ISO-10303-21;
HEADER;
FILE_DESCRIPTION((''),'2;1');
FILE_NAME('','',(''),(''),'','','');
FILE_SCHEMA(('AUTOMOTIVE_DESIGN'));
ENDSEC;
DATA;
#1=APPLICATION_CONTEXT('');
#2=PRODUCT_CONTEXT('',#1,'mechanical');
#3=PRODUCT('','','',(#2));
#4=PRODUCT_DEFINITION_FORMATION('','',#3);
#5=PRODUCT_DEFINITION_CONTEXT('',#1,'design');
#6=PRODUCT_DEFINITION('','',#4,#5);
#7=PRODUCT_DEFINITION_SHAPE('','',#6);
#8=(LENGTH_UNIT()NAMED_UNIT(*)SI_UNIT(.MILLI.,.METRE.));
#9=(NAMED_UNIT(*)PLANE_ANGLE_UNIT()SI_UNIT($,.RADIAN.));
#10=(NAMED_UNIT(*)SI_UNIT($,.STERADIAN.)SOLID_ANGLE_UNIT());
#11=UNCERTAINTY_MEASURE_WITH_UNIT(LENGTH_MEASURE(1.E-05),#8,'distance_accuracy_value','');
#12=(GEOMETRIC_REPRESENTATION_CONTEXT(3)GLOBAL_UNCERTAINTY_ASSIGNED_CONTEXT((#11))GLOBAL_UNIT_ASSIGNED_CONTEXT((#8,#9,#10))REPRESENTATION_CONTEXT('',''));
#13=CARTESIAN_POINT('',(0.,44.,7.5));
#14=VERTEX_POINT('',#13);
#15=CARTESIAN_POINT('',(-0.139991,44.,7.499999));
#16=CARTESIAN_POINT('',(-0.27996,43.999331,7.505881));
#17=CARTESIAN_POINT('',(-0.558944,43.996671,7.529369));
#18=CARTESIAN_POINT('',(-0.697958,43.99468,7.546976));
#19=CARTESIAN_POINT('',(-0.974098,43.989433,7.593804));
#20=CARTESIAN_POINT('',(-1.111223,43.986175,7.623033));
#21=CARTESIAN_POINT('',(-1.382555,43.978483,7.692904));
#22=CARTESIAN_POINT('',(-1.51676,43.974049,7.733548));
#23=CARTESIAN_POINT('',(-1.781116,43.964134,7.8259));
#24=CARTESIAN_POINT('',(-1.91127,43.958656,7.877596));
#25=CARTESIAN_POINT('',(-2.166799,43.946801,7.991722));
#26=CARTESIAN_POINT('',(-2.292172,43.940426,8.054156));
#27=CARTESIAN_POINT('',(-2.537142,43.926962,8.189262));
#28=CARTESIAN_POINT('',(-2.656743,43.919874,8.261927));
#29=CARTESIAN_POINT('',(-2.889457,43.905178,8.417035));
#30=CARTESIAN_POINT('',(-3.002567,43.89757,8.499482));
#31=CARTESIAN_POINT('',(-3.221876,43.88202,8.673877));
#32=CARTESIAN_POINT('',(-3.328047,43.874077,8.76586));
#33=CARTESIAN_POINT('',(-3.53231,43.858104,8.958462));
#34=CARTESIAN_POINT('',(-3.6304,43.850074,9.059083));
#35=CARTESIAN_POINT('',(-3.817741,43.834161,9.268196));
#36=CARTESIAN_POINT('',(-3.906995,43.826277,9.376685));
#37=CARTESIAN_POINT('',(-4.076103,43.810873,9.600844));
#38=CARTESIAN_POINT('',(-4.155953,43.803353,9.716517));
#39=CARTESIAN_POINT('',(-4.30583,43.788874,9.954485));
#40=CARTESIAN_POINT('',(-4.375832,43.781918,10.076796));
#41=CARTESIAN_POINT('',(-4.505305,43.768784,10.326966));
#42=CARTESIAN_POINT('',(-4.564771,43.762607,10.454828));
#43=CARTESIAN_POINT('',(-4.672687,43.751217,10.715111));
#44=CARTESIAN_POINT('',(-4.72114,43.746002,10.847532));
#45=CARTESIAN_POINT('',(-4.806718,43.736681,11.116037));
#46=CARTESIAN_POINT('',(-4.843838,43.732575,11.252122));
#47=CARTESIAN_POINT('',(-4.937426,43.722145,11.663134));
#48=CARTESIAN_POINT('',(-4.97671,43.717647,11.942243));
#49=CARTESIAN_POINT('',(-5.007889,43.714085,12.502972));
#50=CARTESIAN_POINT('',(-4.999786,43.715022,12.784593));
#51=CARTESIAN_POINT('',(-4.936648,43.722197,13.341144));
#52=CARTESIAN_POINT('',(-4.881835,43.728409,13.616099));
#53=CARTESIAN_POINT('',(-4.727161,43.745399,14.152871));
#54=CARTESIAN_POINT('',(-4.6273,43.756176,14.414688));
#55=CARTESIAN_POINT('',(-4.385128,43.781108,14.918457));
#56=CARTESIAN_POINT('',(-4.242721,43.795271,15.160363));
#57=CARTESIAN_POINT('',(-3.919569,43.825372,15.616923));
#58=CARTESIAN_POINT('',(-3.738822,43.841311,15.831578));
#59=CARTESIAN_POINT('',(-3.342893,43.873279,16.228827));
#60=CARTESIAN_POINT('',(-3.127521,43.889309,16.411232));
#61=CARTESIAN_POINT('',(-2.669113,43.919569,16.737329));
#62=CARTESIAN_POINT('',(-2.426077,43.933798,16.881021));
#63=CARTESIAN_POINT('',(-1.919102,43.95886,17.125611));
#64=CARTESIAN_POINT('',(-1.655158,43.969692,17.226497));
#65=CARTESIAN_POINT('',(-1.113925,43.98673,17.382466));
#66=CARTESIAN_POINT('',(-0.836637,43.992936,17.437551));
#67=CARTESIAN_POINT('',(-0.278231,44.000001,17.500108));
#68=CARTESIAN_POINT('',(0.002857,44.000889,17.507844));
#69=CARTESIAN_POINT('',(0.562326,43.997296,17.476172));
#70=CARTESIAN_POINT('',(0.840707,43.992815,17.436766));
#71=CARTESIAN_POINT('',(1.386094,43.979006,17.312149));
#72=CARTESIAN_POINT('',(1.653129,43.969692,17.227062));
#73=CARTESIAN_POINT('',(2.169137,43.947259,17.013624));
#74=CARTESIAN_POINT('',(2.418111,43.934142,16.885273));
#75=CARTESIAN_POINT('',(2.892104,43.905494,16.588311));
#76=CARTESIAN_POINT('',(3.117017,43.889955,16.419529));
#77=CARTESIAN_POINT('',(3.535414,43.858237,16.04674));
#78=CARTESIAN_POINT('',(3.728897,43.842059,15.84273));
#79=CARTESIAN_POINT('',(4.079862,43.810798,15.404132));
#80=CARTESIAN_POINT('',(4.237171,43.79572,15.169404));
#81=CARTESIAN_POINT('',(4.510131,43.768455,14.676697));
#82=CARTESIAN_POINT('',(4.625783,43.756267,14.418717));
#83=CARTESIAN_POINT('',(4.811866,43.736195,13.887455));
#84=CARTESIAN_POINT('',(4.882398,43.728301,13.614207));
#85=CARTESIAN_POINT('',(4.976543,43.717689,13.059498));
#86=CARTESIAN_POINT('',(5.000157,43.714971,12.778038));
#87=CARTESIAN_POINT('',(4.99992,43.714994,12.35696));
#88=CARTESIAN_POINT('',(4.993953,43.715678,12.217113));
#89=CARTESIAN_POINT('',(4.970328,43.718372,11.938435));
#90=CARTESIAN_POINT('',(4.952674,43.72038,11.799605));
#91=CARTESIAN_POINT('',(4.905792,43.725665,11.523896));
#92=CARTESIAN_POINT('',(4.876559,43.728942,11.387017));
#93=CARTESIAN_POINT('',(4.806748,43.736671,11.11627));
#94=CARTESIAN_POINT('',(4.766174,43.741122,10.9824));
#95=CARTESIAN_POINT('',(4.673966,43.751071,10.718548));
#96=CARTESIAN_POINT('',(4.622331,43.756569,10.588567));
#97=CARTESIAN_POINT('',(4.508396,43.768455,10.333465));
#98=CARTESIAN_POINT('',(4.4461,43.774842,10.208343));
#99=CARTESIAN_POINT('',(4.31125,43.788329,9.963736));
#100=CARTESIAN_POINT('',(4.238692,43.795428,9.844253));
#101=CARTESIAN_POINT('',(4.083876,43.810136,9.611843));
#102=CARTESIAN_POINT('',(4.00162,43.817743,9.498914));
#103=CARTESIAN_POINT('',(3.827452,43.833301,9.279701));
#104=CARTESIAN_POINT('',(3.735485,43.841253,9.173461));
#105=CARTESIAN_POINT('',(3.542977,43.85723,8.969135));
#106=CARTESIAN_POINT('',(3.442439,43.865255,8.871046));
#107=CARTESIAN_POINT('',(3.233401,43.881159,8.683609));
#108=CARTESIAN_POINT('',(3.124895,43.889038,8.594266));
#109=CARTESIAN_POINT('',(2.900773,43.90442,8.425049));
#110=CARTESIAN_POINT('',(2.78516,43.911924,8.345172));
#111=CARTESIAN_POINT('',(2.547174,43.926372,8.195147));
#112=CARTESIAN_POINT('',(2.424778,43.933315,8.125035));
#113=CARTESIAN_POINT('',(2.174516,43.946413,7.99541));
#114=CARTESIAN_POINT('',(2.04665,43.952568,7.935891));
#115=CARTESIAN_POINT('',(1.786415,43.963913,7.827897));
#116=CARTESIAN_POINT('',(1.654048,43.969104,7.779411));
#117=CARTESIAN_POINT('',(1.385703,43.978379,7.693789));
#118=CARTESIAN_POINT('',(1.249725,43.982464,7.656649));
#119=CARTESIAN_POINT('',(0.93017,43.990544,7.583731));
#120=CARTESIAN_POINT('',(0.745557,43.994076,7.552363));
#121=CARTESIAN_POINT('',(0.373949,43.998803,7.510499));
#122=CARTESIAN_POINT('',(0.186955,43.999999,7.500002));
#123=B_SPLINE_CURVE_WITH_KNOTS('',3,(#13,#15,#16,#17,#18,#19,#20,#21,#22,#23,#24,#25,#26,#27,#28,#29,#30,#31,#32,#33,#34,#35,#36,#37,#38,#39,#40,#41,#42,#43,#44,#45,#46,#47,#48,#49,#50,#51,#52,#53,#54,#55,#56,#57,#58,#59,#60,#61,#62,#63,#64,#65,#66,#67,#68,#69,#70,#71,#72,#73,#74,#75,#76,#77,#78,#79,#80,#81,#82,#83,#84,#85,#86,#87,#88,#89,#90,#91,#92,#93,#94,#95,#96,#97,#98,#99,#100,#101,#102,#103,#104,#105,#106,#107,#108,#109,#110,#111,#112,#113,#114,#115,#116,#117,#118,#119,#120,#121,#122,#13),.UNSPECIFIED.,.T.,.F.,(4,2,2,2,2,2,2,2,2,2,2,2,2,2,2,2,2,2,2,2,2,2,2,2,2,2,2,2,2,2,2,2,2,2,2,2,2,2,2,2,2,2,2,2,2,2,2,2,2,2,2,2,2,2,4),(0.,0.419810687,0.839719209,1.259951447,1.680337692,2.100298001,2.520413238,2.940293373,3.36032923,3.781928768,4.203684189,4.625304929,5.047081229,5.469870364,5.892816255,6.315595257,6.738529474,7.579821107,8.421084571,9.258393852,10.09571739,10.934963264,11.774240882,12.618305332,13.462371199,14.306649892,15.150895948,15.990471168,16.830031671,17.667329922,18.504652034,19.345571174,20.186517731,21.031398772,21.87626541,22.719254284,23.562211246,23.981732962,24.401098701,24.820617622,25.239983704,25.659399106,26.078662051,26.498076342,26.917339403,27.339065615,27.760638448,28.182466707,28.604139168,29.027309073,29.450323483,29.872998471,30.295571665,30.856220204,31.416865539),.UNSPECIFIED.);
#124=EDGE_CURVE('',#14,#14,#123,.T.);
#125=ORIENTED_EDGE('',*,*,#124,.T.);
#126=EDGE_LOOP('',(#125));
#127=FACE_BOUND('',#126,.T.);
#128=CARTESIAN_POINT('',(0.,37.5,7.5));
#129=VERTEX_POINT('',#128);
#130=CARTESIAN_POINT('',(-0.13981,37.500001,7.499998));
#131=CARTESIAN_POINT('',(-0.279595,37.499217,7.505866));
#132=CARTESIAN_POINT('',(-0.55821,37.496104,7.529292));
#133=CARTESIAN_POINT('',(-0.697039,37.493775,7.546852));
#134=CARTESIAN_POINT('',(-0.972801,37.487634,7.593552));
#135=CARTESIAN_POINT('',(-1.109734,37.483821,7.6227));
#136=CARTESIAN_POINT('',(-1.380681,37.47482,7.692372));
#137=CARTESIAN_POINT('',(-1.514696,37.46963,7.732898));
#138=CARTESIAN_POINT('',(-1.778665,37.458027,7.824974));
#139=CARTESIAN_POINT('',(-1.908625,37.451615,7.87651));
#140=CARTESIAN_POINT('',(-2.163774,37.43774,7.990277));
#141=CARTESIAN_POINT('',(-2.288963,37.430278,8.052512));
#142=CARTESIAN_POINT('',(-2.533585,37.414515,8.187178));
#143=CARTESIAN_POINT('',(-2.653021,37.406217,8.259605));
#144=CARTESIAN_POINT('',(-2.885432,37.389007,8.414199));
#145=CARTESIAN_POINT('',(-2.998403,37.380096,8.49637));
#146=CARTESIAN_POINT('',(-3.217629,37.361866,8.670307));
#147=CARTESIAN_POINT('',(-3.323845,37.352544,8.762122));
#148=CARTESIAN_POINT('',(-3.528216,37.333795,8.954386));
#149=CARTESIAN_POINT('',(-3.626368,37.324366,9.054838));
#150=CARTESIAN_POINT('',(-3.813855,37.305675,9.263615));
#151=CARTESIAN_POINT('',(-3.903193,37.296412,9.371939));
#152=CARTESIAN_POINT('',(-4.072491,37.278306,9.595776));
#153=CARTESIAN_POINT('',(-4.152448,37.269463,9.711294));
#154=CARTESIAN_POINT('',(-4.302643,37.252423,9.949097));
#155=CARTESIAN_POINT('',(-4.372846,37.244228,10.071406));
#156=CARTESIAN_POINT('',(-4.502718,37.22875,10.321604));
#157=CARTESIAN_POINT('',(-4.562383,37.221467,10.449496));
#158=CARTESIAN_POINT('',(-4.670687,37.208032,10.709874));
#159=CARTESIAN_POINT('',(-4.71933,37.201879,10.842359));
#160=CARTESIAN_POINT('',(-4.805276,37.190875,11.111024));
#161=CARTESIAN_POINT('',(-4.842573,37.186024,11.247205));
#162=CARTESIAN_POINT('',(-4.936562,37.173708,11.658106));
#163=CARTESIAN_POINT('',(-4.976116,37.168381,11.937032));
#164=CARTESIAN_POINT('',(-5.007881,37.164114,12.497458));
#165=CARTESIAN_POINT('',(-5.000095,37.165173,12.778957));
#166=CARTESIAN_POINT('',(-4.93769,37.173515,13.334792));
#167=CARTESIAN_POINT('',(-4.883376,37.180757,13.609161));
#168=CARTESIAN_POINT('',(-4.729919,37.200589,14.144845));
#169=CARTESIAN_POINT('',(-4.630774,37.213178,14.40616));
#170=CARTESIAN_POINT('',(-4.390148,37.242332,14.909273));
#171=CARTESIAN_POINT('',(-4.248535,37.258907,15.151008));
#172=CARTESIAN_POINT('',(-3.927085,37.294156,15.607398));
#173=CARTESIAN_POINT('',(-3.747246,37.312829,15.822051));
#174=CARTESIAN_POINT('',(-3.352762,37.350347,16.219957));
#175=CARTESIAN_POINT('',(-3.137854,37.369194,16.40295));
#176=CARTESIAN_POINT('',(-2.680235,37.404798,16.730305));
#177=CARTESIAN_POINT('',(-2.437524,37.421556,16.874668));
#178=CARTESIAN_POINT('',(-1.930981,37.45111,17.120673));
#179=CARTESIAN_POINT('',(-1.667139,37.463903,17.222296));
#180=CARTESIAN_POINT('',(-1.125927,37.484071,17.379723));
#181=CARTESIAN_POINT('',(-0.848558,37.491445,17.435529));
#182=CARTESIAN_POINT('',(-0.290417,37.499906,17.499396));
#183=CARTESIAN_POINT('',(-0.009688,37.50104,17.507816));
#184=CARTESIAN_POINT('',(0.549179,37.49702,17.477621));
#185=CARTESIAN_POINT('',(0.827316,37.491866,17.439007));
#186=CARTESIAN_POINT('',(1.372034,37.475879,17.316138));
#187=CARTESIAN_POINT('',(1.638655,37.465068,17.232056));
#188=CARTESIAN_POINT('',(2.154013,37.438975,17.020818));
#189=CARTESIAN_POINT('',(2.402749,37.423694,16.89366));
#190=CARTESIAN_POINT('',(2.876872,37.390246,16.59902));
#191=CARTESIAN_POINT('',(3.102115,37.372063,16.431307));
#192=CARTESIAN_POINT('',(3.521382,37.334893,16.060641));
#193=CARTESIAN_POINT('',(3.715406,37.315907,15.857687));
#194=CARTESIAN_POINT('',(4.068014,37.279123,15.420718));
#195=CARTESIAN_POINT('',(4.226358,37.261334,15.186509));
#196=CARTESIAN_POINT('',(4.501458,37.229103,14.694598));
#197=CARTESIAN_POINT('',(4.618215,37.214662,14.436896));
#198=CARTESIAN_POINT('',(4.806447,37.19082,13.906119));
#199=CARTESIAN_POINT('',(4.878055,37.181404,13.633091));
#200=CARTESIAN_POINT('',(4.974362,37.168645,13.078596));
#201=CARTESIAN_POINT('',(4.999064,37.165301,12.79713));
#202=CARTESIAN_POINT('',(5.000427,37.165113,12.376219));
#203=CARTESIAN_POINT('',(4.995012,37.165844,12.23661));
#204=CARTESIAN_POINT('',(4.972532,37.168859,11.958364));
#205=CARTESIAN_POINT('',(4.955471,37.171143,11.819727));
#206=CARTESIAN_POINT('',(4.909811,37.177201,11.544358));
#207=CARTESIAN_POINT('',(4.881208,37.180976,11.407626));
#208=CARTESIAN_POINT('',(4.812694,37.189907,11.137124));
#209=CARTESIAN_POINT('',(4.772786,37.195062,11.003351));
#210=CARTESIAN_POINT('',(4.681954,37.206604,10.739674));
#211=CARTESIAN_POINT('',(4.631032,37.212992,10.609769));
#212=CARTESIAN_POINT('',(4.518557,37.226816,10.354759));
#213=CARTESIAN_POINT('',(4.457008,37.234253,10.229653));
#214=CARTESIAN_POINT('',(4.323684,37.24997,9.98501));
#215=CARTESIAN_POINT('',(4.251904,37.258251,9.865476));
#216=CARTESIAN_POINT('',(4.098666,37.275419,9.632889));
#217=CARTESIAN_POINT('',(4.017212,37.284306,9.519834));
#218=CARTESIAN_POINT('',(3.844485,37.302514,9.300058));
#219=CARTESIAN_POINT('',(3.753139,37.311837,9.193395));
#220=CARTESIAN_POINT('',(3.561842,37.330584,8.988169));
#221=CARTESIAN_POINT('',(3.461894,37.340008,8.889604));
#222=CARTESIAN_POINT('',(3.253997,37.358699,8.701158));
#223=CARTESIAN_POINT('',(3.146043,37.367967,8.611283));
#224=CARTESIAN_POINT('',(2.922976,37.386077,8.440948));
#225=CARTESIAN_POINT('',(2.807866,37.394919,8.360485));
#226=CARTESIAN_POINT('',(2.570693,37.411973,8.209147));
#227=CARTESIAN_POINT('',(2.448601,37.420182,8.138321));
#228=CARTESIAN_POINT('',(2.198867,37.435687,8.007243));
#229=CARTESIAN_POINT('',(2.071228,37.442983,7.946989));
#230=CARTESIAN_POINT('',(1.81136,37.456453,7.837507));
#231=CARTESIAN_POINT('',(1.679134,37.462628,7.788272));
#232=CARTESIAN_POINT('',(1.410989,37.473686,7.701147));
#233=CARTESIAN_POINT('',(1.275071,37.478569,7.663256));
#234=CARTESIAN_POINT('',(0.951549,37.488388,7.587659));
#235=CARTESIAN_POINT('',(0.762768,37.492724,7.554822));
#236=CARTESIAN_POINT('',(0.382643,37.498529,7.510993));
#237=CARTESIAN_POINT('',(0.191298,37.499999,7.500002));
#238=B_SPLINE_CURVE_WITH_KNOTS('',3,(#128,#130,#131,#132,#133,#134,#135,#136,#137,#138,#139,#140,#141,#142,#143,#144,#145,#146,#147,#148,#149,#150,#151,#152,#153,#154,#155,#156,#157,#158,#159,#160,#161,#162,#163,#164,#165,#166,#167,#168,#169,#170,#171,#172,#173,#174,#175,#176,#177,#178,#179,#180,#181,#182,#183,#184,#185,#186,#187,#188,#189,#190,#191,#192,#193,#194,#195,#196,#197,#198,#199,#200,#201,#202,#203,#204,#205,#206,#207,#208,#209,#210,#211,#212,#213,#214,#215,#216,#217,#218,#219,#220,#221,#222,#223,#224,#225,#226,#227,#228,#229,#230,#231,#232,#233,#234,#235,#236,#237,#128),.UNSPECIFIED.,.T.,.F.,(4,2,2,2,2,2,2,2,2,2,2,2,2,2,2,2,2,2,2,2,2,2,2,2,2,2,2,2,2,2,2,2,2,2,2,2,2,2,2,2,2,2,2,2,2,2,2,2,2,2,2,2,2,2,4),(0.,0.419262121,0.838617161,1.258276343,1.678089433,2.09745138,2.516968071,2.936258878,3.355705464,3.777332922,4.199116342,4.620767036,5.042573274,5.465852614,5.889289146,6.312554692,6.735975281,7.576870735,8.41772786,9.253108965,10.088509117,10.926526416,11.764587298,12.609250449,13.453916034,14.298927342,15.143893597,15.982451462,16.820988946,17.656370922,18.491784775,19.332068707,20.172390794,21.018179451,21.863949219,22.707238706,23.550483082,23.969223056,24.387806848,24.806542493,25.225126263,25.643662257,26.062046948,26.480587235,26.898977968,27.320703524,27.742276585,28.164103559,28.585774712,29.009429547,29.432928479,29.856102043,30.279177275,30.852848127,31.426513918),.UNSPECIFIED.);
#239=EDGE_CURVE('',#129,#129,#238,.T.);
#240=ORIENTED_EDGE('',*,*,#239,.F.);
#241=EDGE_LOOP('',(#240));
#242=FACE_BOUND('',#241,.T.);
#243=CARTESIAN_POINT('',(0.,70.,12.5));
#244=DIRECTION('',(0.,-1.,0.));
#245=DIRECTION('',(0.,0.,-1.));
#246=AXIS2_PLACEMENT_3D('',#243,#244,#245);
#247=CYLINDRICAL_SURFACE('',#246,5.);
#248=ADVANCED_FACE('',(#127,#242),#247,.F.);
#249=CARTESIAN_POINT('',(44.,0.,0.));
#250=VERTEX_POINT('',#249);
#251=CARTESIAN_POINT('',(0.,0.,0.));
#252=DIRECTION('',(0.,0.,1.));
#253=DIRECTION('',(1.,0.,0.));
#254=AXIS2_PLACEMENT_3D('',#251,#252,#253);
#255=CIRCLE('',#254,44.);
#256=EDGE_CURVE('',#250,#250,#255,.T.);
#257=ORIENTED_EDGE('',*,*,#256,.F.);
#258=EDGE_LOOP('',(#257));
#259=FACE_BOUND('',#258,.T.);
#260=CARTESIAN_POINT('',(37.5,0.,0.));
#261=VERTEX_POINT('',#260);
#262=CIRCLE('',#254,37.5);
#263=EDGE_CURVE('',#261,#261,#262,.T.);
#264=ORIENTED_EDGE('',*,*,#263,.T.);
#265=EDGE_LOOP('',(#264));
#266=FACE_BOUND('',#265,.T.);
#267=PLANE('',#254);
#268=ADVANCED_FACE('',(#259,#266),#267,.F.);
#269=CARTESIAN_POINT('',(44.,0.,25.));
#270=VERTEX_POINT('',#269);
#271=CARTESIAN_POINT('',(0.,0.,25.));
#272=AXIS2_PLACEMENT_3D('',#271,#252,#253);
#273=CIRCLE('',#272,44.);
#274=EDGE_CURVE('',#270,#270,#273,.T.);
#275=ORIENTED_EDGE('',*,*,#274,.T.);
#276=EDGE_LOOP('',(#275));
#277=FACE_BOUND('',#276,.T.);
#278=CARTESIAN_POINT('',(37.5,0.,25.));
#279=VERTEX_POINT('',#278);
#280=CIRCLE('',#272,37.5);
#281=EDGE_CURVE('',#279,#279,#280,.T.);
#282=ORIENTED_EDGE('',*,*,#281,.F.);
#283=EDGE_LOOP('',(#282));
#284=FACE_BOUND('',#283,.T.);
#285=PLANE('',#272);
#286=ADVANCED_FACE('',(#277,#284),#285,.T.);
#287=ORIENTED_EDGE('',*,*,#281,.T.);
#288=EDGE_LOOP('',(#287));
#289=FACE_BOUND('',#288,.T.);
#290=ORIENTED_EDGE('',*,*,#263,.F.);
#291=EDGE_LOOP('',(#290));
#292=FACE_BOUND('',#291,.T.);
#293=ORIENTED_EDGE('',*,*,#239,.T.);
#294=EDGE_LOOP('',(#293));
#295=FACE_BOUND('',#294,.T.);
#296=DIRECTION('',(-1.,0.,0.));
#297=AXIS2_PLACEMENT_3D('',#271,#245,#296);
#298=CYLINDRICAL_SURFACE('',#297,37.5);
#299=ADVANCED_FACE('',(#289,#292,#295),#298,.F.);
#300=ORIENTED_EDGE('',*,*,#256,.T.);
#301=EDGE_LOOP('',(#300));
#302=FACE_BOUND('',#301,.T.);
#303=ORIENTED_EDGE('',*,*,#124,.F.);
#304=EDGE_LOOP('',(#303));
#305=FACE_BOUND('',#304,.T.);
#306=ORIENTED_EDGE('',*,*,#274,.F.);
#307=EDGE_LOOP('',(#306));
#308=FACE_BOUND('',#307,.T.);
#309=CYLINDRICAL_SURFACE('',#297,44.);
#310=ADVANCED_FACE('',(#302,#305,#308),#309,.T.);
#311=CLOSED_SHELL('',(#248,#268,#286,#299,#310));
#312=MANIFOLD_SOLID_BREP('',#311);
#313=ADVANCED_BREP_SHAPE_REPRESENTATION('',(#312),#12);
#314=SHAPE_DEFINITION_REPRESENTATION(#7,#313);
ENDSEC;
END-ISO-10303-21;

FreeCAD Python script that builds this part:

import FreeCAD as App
import Part
import Sketcher

V = App.Vector
Q = App.Units.Quantity

doc = App.newDocument("Part")
body = doc.addObject("PartDesign::Body", "Body")

sketch1 = body.newObject("Sketcher::SketchObject", "Sketch")
sketch1.AttachmentSupport = (doc.getObject("XY_Plane"), [""])
sketch1.MapMode = "FlatFace"
sketch1.addGeometry(Part.Circle(V(0, 0, 0), V(0, 0, 1), 44), False)
sketch1.addGeometry(Part.Circle(V(0, 0, 0), V(0, 0, 1), 38), False)
sketch1.addConstraint(Sketcher.Constraint("Coincident", 0, 3, -1, 1))
sketch1.addConstraint(Sketcher.Constraint("Coincident", 1, 3, -1, 1))
sketch1.addConstraint(Sketcher.Constraint("Diameter", 0, Q("88 mm")))
sketch1.addConstraint(Sketcher.Constraint("Diameter", 1, Q("75 mm")))
pad1 = body.newObject("PartDesign::Pad", "Pad")
pad1.Profile = sketch1
pad1.Length = 25

sketch2 = body.newObject("Sketcher::SketchObject", "Sketch001")
sketch2.AttachmentSupport = (doc.getObject("XZ_Plane"), [""])
sketch2.MapMode = "FlatFace"
sketch2.addGeometry(Part.Circle(V(0, 12, 0), V(0, 0, 1), 5), False)
sketch2.addConstraint(Sketcher.Constraint("PointOnObject", 0, 3, -2))
sketch2.addConstraint(Sketcher.Constraint("Diameter", 0, Q("10 mm")))
sketch2.addConstraint(Sketcher.Constraint("DistanceY", -1, 1, 0, 3, Q("12.5 mm")))
pocket1 = body.newObject("PartDesign::Pocket", "Pocket")
pocket1.Profile = sketch2
pocket1.Length = 70

doc.recompute()
